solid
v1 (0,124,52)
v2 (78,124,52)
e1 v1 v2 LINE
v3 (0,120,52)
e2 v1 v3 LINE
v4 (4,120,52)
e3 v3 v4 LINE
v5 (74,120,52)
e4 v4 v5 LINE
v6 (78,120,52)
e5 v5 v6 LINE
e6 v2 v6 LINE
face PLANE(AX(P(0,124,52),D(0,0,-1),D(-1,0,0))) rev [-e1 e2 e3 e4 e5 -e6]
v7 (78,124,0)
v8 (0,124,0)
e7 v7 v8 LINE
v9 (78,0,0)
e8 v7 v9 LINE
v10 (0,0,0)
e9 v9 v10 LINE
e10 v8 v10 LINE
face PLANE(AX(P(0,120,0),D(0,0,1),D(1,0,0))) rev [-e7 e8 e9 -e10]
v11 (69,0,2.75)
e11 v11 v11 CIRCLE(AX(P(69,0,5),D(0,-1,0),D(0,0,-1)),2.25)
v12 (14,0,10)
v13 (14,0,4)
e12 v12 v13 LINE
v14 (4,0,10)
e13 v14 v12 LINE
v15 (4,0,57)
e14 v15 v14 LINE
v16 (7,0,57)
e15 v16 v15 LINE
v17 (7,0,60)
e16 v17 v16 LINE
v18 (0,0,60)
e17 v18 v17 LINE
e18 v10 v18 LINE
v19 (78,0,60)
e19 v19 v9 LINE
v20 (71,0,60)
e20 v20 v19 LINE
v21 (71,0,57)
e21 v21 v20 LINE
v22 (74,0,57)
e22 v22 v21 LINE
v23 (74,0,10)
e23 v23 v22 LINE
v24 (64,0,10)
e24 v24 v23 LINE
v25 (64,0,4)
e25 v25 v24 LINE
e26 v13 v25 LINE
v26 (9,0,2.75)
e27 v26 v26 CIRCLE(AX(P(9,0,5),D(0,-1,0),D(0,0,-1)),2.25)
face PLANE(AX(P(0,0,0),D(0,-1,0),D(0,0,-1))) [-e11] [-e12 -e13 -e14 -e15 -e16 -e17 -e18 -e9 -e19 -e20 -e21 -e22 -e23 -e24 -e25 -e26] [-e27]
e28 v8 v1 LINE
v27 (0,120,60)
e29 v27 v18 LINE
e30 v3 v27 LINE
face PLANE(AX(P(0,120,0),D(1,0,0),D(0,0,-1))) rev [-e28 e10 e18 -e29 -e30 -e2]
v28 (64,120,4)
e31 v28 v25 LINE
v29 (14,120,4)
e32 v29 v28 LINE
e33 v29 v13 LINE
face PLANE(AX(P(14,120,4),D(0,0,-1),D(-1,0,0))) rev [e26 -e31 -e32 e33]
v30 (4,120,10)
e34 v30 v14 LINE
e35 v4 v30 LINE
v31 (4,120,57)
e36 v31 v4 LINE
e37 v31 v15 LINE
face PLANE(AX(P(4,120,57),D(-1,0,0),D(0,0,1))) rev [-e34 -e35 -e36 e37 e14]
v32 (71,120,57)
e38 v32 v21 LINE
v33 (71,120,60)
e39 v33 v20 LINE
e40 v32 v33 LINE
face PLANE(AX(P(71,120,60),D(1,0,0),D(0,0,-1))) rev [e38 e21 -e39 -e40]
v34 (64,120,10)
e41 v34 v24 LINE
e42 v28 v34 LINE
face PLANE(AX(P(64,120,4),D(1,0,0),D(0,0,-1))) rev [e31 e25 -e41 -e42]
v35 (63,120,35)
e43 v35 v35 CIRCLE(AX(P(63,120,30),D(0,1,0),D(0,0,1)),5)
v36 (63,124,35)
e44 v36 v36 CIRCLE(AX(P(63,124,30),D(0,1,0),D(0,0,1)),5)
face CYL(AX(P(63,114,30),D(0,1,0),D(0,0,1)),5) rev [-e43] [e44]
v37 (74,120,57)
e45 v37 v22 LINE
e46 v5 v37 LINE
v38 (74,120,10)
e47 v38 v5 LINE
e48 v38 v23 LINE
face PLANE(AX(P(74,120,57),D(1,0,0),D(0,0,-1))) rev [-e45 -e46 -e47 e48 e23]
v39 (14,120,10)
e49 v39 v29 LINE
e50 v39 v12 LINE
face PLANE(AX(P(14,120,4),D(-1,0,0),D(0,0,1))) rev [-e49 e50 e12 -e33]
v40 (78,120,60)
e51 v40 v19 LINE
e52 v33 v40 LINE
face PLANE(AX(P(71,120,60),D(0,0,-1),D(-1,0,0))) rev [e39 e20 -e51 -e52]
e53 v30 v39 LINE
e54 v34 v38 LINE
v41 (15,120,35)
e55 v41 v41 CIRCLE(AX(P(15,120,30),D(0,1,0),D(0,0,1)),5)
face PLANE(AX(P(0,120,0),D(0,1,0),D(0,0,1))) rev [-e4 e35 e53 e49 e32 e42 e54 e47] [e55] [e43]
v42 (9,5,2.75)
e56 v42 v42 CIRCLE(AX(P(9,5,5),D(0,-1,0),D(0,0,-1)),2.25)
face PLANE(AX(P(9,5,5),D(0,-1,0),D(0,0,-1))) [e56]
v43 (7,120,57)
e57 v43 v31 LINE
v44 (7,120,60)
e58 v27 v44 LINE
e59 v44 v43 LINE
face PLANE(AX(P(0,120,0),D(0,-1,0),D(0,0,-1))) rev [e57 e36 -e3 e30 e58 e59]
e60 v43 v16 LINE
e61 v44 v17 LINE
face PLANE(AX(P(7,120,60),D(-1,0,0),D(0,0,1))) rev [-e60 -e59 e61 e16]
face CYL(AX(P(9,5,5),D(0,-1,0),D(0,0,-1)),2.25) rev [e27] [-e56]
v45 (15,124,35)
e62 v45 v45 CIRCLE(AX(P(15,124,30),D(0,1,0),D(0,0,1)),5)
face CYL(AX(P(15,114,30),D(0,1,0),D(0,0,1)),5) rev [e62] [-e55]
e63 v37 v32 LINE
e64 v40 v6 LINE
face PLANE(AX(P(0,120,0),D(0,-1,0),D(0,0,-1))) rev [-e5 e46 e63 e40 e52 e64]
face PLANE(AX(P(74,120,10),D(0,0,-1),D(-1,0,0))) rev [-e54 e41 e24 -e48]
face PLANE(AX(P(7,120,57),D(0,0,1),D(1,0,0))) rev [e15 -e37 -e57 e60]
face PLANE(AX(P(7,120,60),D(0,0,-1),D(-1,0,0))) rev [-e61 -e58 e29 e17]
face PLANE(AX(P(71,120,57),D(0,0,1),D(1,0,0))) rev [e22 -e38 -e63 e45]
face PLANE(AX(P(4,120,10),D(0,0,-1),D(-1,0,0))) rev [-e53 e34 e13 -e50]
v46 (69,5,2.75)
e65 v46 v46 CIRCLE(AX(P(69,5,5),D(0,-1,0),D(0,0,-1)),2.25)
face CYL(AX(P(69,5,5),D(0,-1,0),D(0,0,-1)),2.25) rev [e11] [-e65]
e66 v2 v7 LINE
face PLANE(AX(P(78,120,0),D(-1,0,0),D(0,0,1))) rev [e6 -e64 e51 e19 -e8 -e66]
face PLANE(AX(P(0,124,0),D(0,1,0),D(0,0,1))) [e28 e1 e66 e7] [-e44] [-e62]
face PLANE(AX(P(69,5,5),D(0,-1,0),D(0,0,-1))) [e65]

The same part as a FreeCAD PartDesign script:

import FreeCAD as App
import Part
import Sketcher
from FreeCAD import Vector
Q = App.Units.Quantity


def add_polygon(sketch, points):
    """Adds a closed chain of lines whose ends are joined by coincident constraints."""
    first, n = sketch.GeometryCount, len(points)
    for a, b in zip(points, points[1:] + points[:1]):
        sketch.addGeometry(Part.LineSegment(App.Vector(*a, 0), App.Vector(*b, 0)), False)
    for i in range(n):
        sketch.addConstraint(Sketcher.Constraint("Coincident", first + i, 2, first + (i + 1) % n, 1))

doc = App.newDocument("Part")
body = doc.addObject("PartDesign::Body", "Body")

# Sketch on XZ plane
sketch1 = body.newObject("Sketcher::SketchObject", "Sketch")
sketch1.AttachmentSupport = (doc.getObject("XZ_Plane"), [""])
sketch1.MapMode = "FlatFace"
add_polygon(sketch1, [(71, 60), (78, 60), (78, 0), (0, 0), (0, 60), (7, 60), (7, 57), (4, 57), (4, 10), (14, 10), (14, 4), (64, 4), (64, 10), (74, 10), (74, 57), (71, 57)])  # lines 0-15
sketch1.addConstraint(Sketcher.Constraint("Horizontal", 0))
sketch1.addConstraint(Sketcher.Constraint("Vertical", 1))
sketch1.addConstraint(Sketcher.Constraint("Horizontal", 2))
sketch1.addConstraint(Sketcher.Constraint("Vertical", 3))
sketch1.addConstraint(Sketcher.Constraint("Horizontal", 4))
sketch1.addConstraint(Sketcher.Constraint("Vertical", 5))
sketch1.addConstraint(Sketcher.Constraint("Horizontal", 6))
sketch1.addConstraint(Sketcher.Constraint("Vertical", 7))
sketch1.addConstraint(Sketcher.Constraint("Horizontal", 8))
sketch1.addConstraint(Sketcher.Constraint("Vertical", 9))
sketch1.addConstraint(Sketcher.Constraint("Horizontal", 10))
sketch1.addConstraint(Sketcher.Constraint("Vertical", 11))
sketch1.addConstraint(Sketcher.Constraint("Horizontal", 12))
sketch1.addConstraint(Sketcher.Constraint("Vertical", 13))
sketch1.addConstraint(Sketcher.Constraint("Horizontal", 14))
sketch1.addConstraint(Sketcher.Constraint("Vertical", 15))
sketch1.addConstraint(Sketcher.Constraint("Coincident", 2, 2, -1, 1))
sketch1.addConstraint(Sketcher.Constraint("Horizontal", 0, 2, 3, 2))
sketch1.addConstraint(Sketcher.Constraint("Horizontal", 8, 2, 11, 2))
sketch1.addConstraint(Sketcher.Constraint("Horizontal", 6, 2, 13, 2))
sketch1.addConstraint(Sketcher.Constraint("Equal", 0, 4))
sketch1.addConstraint(Sketcher.Constraint("Equal", 8, 12))
sketch1.addConstraint(Sketcher.Constraint("Equal", 6, 14))
sketch1.addConstraint(Sketcher.Constraint("Equal", 14, 5))
sketch1.addConstraint(Sketcher.Constraint("DistanceX", 0, 1, 0, 2, Q("7 mm")))
sketch1.addConstraint(Sketcher.Constraint("DistanceX", 2, 2, 2, 1, Q("78 mm")))
sketch1.addConstraint(Sketcher.Constraint("DistanceX", 6, 2, 6, 1, Q("3 mm")))
sketch1.addConstraint(Sketcher.Constraint("DistanceX", 8, 1, 8, 2, Q("10 mm")))
sketch1.addConstraint(Sketcher.Constraint("DistanceY", 1, 2, 1, 1, Q("60 mm")))
sketch1.addConstraint(Sketcher.Constraint("DistanceY", 7, 2, 7, 1, Q("47 mm")))
sketch1.addConstraint(Sketcher.Constraint("DistanceY", 9, 2, 9, 1, Q("6 mm")))
pad1 = body.newObject("PartDesign::Pad", "Pad")
pad1.Profile = sketch1
pad1.Length = 120
pad1.Reversed = True

# Sketch on XZ plane
sketch2 = body.newObject("Sketcher::SketchObject", "Sketch001")
sketch2.AttachmentSupport = (doc.getObject("XZ_Plane"), [""])
sketch2.MapMode = "FlatFace"
sketch2.addGeometry(Part.Circle(Vector(69, 5, 0), Vector(0, 0, 1), 2.25), False)
sketch2.addGeometry(Part.Circle(Vector(9, 5, 0), Vector(0, 0, 1), 2.25), False)
sketch2.addConstraint(Sketcher.Constraint("Equal", 0, 1))
sketch2.addConstraint(Sketcher.Constraint("Horizontal", 0, 3, 1, 3))
sketch2.addConstraint(Sketcher.Constraint("Diameter", 0, Q("4.5 mm")))
sketch2.addConstraint(Sketcher.Constraint("DistanceX", -1, 1, 0, 3, Q("69 mm")))
sketch2.addConstraint(Sketcher.Constraint("DistanceY", -1, 1, 0, 3, Q("5 mm")))
sketch2.addConstraint(Sketcher.Constraint("DistanceX", -1, 1, 1, 3, Q("9 mm")))
pocket1 = body.newObject("PartDesign::Pocket", "Pocket")
pocket1.Profile = sketch2
pocket1.Length = 5

# Sketch on XZ plane
sketch3 = body.newObject("Sketcher::SketchObject", "Sketch002")
sketch3.AttachmentSupport = (doc.getObject("XZ_Plane"), [""])
sketch3.MapMode = "FlatFace"
sketch3.AttachmentOffset = App.Placement(Vector(0, 0, -120), App.Rotation())
add_polygon(sketch3, [(0, 0), (0, 52), (78, 52), (78, 0)])  # lines 0-3
sketch3.addConstraint(Sketcher.Constraint("Vertical", 0))
sketch3.addConstraint(Sketcher.Constraint("Horizontal", 1))
sketch3.addConstraint(Sketcher.Constraint("Vertical", 2))
sketch3.addConstraint(Sketcher.Constraint("Horizontal", 3))
sketch3.addConstraint(Sketcher.Constraint("Coincident", 3, 2, -1, 1))
sketch3.addConstraint(Sketcher.Constraint("DistanceX", 1, 1, 1, 2, Q("78 mm")))
sketch3.addConstraint(Sketcher.Constraint("DistanceY", 0, 1, 0, 2, Q("52 mm")))
pad2 = body.newObject("PartDesign::Pad", "Pad001")
pad2.Profile = sketch3
pad2.Length = 4
pad2.Reversed = True

# Sketch on XZ plane
sketch4 = body.newObject("Sketcher::SketchObject", "Sketch003")
sketch4.AttachmentSupport = (doc.getObject("XZ_Plane"), [""])
sketch4.MapMode = "FlatFace"
sketch4.AttachmentOffset = App.Placement(Vector(0, 0, -124), App.Rotation())
sketch4.addGeometry(Part.Circle(Vector(15, 30, 0), Vector(0, 0, 1), 5), False)
sketch4.addGeometry(Part.Circle(Vector(63, 30, 0), Vector(0, 0, 1), 5), False)
sketch4.addConstraint(Sketcher.Constraint("Equal", 0, 1))
sketch4.addConstraint(Sketcher.Constraint("Horizontal", 0, 3, 1, 3))
sketch4.addConstraint(Sketcher.Constraint("Diameter", 0, Q("10 mm")))
sketch4.addConstraint(Sketcher.Constraint("DistanceX", -1, 1, 0, 3, Q("15 mm")))
sketch4.addConstraint(Sketcher.Constraint("DistanceY", -1, 1, 0, 3, Q("30 mm")))
sketch4.addConstraint(Sketcher.Constraint("DistanceX", -1, 1, 1, 3, Q("63 mm")))
pocket2 = body.newObject("PartDesign::Pocket", "Pocket001")
pocket2.Profile = sketch4
pocket2.Length = 10
pocket2.Reversed = True

doc.recompute()
